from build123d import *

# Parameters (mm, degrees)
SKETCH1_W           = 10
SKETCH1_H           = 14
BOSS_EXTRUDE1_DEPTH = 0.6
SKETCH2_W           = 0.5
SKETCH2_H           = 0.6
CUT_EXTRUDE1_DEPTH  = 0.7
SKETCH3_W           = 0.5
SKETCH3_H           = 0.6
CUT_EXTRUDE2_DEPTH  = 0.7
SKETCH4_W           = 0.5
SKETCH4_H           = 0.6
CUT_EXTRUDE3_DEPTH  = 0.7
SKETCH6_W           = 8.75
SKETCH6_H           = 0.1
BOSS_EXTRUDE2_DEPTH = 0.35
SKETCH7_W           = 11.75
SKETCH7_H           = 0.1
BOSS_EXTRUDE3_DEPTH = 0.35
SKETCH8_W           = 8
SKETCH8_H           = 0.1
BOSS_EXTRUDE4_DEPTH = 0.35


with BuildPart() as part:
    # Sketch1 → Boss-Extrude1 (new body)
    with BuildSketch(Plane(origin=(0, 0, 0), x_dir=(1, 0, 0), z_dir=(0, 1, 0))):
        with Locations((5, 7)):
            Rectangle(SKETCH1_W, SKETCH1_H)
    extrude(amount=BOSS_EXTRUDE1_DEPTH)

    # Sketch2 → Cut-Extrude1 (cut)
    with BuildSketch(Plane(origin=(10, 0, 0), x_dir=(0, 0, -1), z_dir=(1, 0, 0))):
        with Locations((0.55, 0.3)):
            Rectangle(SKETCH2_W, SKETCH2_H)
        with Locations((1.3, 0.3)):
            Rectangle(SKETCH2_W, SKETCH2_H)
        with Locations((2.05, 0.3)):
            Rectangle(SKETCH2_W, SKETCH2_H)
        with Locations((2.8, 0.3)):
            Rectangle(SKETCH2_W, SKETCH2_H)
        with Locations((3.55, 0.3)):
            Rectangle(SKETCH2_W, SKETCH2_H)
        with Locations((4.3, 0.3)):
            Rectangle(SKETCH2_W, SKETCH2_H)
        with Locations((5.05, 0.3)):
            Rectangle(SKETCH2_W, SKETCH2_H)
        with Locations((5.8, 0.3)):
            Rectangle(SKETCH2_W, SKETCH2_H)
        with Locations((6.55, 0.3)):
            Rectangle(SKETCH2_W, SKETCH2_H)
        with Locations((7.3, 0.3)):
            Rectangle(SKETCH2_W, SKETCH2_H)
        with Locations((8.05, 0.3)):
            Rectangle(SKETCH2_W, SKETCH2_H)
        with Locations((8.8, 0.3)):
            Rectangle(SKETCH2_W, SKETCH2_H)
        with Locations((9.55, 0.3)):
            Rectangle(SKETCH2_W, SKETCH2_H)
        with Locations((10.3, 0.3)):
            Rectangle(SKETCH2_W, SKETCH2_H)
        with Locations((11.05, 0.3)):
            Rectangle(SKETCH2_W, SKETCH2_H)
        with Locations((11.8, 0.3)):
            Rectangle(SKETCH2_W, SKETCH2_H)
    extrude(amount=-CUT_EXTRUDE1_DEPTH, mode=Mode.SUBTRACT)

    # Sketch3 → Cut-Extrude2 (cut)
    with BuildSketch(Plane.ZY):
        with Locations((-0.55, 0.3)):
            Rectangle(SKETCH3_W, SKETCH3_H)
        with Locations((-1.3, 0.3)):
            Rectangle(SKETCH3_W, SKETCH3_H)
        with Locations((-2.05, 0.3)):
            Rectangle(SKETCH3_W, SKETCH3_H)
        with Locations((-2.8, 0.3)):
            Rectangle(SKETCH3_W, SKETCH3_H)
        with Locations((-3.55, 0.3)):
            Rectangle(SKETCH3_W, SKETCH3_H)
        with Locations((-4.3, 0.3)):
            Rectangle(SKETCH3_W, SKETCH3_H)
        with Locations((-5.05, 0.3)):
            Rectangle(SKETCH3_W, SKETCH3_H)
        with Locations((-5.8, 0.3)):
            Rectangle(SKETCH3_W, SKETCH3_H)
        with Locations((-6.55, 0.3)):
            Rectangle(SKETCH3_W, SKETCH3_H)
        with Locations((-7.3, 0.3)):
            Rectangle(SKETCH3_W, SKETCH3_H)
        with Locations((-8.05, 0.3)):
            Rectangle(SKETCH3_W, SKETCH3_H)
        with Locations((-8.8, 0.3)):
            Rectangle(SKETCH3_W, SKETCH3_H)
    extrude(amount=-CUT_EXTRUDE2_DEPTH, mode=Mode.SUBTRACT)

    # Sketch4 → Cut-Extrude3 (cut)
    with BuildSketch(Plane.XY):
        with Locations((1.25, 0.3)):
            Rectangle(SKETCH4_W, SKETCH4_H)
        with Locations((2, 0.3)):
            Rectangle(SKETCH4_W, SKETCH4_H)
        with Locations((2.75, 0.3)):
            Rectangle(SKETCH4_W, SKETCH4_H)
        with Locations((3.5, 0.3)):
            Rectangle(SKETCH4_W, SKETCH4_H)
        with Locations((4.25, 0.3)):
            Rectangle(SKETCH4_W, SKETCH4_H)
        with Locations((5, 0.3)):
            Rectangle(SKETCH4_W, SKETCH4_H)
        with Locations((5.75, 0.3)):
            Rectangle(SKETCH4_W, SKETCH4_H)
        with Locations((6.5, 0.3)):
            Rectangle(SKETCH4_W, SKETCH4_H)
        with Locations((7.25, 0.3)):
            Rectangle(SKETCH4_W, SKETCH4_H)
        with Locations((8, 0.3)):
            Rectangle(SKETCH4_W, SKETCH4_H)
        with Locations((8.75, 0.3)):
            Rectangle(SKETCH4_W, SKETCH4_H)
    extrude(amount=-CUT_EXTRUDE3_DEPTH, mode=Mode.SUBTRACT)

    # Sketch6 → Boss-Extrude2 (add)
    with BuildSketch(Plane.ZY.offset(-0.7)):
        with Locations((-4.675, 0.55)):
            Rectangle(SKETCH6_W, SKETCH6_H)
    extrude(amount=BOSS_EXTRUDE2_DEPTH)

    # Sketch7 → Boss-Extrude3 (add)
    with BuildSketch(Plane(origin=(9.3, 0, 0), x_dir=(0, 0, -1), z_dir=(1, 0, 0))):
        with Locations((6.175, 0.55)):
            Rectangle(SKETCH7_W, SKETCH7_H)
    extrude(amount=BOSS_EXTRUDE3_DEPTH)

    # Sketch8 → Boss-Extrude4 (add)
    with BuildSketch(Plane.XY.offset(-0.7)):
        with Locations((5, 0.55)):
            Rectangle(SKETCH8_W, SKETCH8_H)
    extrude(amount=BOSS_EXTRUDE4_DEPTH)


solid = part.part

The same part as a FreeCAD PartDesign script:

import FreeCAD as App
import Part
import Sketcher
from FreeCAD import Vector
Q = App.Units.Quantity


def add_polygon(sketch, points):
    """Adds a closed chain of lines whose ends are joined by coincident constraints."""
    first, n = sketch.GeometryCount, len(points)
    for a, b in zip(points, points[1:] + points[:1]):
        sketch.addGeometry(Part.LineSegment(App.Vector(*a, 0), App.Vector(*b, 0)), False)
    for i in range(n):
        sketch.addConstraint(Sketcher.Constraint("Coincident", first + i, 2, first + (i + 1) % n, 1))

doc = App.newDocument("Part")
body = doc.addObject("PartDesign::Body", "Body")

# Sketch on XZ plane
sketch1 = body.newObject("Sketcher::SketchObject", "Sketch")
sketch1.AttachmentSupport = (doc.getObject("XZ_Plane"), [""])
sketch1.MapMode = "FlatFace"
add_polygon(sketch1, [(0, -14), (0, 0), (10, 0), (10, -14)])  # lines 0-3
sketch1.addConstraint(Sketcher.Constraint("Vertical", 0))
sketch1.addConstraint(Sketcher.Constraint("Horizontal", 1))
sketch1.addConstraint(Sketcher.Constraint("Vertical", 2))
sketch1.addConstraint(Sketcher.Constraint("Horizontal", 3))
sketch1.addConstraint(Sketcher.Constraint("Coincident", 0, 2, -1, 1))
sketch1.addConstraint(Sketcher.Constraint("DistanceX", 1, 1, 1, 2, Q("10 mm")))
sketch1.addConstraint(Sketcher.Constraint("DistanceY", 0, 1, 0, 2, Q("14 mm")))
pad1 = body.newObject("PartDesign::Pad", "Pad")
pad1.Profile = sketch1
pad1.Length = 0.6
pad1.Reversed = True

# Sketch on YZ plane
sketch2 = body.newObject("Sketcher::SketchObject", "Sketch001")
sketch2.AttachmentSupport = (doc.getObject("YZ_Plane"), [""])
sketch2.MapMode = "FlatFace"
sketch2.AttachmentOffset = App.Placement(Vector(0, 0, 10), App.Rotation())
add_polygon(sketch2, [(0.6, -0.3), (0, -0.3), (0, -0.8), (0.6, -0.8)])  # lines 0-3
add_polygon(sketch2, [(0.6, -1.05), (0, -1.05), (0, -1.55), (0.6, -1.55)])  # lines 4-7
add_polygon(sketch2, [(0.6, -1.8), (0, -1.8), (0, -2.3), (0.6, -2.3)])  # lines 8-11
add_polygon(sketch2, [(0.6, -2.55), (0, -2.55), (0, -3.05), (0.6, -3.05)])  # lines 12-15
add_polygon(sketch2, [(0.6, -3.3), (0, -3.3), (0, -3.8), (0.6, -3.8)])  # lines 16-19
add_polygon(sketch2, [(0.6, -4.05), (0, -4.05), (0, -4.55), (0.6, -4.55)])  # lines 20-23
add_polygon(sketch2, [(0.6, -4.8), (0, -4.8), (0, -5.3), (0.6, -5.3)])  # lines 24-27
add_polygon(sketch2, [(0.6, -5.55), (0, -5.55), (0, -6.05), (0.6, -6.05)])  # lines 28-31
add_polygon(sketch2, [(0.6, -6.3), (0, -6.3), (0, -6.8), (0.6, -6.8)])  # lines 32-35
add_polygon(sketch2, [(0.6, -7.05), (0, -7.05), (0, -7.55), (0.6, -7.55)])  # lines 36-39
add_polygon(sketch2, [(0.6, -7.8), (0, -7.8), (0, -8.3), (0.6, -8.3)])  # lines 40-43
add_polygon(sketch2, [(0.6, -8.55), (0, -8.55), (0, -9.05), (0.6, -9.05)])  # lines 44-47
add_polygon(sketch2, [(0.6, -9.3), (0, -9.3), (0, -9.8), (0.6, -9.8)])  # lines 48-51
add_polygon(sketch2, [(0.6, -10.05), (0, -10.05), (0, -10.55), (0.6, -10.55)])  # lines 52-55
add_polygon(sketch2, [(0.6, -10.8), (0, -10.8), (0, -11.3), (0.6, -11.3)])  # lines 56-59
add_polygon(sketch2, [(0.6, -11.55), (0, -11.55), (0, -12.05), (0.6, -12.05)])  # lines 60-63
sketch2.addConstraint(Sketcher.Constraint("Horizontal", 0))
sketch2.addConstraint(Sketcher.Constraint("Vertical", 1))
sketch2.addConstraint(Sketcher.Constraint("Horizontal", 2))
sketch2.addConstraint(Sketcher.Constraint("Vertical", 3))
sketch2.addConstraint(Sketcher.Constraint("Horizontal", 4))
sketch2.addConstraint(Sketcher.Constraint("Vertical", 5))
sketch2.addConstraint(Sketcher.Constraint("Horizontal", 6))
sketch2.addConstraint(Sketcher.Constraint("Vertical", 7))
sketch2.addConstraint(Sketcher.Constraint("Horizontal", 8))
sketch2.addConstraint(Sketcher.Constraint("Vertical", 9))
sketch2.addConstraint(Sketcher.Constraint("Horizontal", 10))
sketch2.addConstraint(Sketcher.Constraint("Vertical", 11))
sketch2.addConstraint(Sketcher.Constraint("Horizontal", 12))
sketch2.addConstraint(Sketcher.Constraint("Vertical", 13))
sketch2.addConstraint(Sketcher.Constraint("Horizontal", 14))
sketch2.addConstraint(Sketcher.Constraint("Vertical", 15))
sketch2.addConstraint(Sketcher.Constraint("Horizontal", 16))
sketch2.addConstraint(Sketcher.Constraint("Vertical", 17))
sketch2.addConstraint(Sketcher.Constraint("Horizontal", 18))
sketch2.addConstraint(Sketcher.Constraint("Vertical", 19))
sketch2.addConstraint(Sketcher.Constraint("Horizontal", 20))
sketch2.addConstraint(Sketcher.Constraint("Vertical", 21))
sketch2.addConstraint(Sketcher.Constraint("Horizontal", 22))
sketch2.addConstraint(Sketcher.Constraint("Vertical", 23))
sketch2.addConstraint(Sketcher.Constraint("Horizontal", 24))
sketch2.addConstraint(Sketcher.Constraint("Vertical", 25))
sketch2.addConstraint(Sketcher.Constraint("Horizontal", 26))
sketch2.addConstraint(Sketcher.Constraint("Vertical", 27))
sketch2.addConstraint(Sketcher.Constraint("Horizontal", 28))
sketch2.addConstraint(Sketcher.Constraint("Vertical", 29))
sketch2.addConstraint(Sketcher.Constraint("Horizontal", 30))
sketch2.addConstraint(Sketcher.Constraint("Vertical", 31))
sketch2.addConstraint(Sketcher.Constraint("Horizontal", 32))
sketch2.addConstraint(Sketcher.Constraint("Vertical", 33))
sketch2.addConstraint(Sketcher.Constraint("Horizontal", 34))
sketch2.addConstraint(Sketcher.Constraint("Vertical", 35))
sketch2.addConstraint(Sketcher.Constraint("Horizontal", 36))
sketch2.addConstraint(Sketcher.Constraint("Vertical", 37))
sketch2.addConstraint(Sketcher.Constraint("Horizontal", 38))
sketch2.addConstraint(Sketcher.Constraint("Vertical", 39))
sketch2.addConstraint(Sketcher.Constraint("Horizontal", 40))
sketch2.addConstraint(Sketcher.Constraint("Vertical", 41))
sketch2.addConstraint(Sketcher.Constraint("Horizontal", 42))
sketch2.addConstraint(Sketcher.Constraint("Vertical", 43))
sketch2.addConstraint(Sketcher.Constraint("Horizontal", 44))
sketch2.addConstraint(Sketcher.Constraint("Vertical", 45))
sketch2.addConstraint(Sketcher.Constraint("Horizontal", 46))
sketch2.addConstraint(Sketcher.Constraint("Vertical", 47))
sketch2.addConstraint(Sketcher.Constraint("Horizontal", 48))
sketch2.addConstraint(Sketcher.Constraint("Vertical", 49))
sketch2.addConstraint(Sketcher.Constraint("Horizontal", 50))
sketch2.addConstraint(Sketcher.Constraint("Vertical", 51))
sketch2.addConstraint(Sketcher.Constraint("Horizontal", 52))
sketch2.addConstraint(Sketcher.Constraint("Vertical", 53))
sketch2.addConstraint(Sketcher.Constraint("Horizontal", 54))
sketch2.addConstraint(Sketcher.Constraint("Vertical", 55))
sketch2.addConstraint(Sketcher.Constraint("Horizontal", 56))
sketch2.addConstraint(Sketcher.Constraint("Vertical", 57))
sketch2.addConstraint(Sketcher.Constraint("Horizontal", 58))
sketch2.addConstraint(Sketcher.Constraint("Vertical", 59))
sketch2.addConstraint(Sketcher.Constraint("Horizontal", 60))
sketch2.addConstraint(Sketcher.Constraint("Vertical", 61))
sketch2.addConstraint(Sketcher.Constraint("Horizontal", 62))
sketch2.addConstraint(Sketcher.Constraint("Vertical", 63))
sketch2.addConstraint(Sketcher.Constraint("PointOnObject", 0, 2, -2))
sketch2.addConstraint(Sketcher.Constraint("PointOnObject", 4, 2, -2))
sketch2.addConstraint(Sketcher.Constraint("PointOnObject", 8, 2, -2))
sketch2.addConstraint(Sketcher.Constraint("PointOnObject", 12, 2, -2))
sketch2.addConstraint(Sketcher.Constraint("PointOnObject", 16, 2, -2))
sketch2.addConstraint(Sketcher.Constraint("PointOnObject", 20, 2, -2))
sketch2.addConstraint(Sketcher.Constraint("PointOnObject", 24, 2, -2))
sketch2.addConstraint(Sketcher.Constraint("PointOnObject", 28, 2, -2))
sketch2.addConstraint(Sketcher.Constraint("PointOnObject", 32, 2, -2))
sketch2.addConstraint(Sketcher.Constraint("PointOnObject", 36, 2, -2))
sketch2.addConstraint(Sketcher.Constraint("PointOnObject", 40, 2, -2))
sketch2.addConstraint(Sketcher.Constraint("PointOnObject", 44, 2, -2))
sketch2.addConstraint(Sketcher.Constraint("PointOnObject", 48, 2, -2))
sketch2.addConstraint(Sketcher.Constraint("PointOnObject", 52, 2, -2))
sketch2.addConstraint(Sketcher.Constraint("PointOnObject", 56, 2, -2))
sketch2.addConstraint(Sketcher.Constraint("PointOnObject", 60, 2, -2))
sketch2.addConstraint(Sketcher.Constraint("Vertical", 3, 2, 6, 2))
sketch2.addConstraint(Sketcher.Constraint("Vertical", 7, 2, 10, 2))
sketch2.addConstraint(Sketcher.Constraint("Vertical", 11, 2, 14, 2))
sketch2.addConstraint(Sketcher.Constraint("Vertical", 15, 2, 18, 2))
sketch2.addConstraint(Sketcher.Constraint("Vertical", 19, 2, 22, 2))
sketch2.addConstraint(Sketcher.Constraint("Vertical", 23, 2, 26, 2))
sketch2.addConstraint(Sketcher.Constraint("Vertical", 27, 2, 30, 2))
sketch2.addConstraint(Sketcher.Constraint("Vertical", 31, 2, 34, 2))
sketch2.addConstraint(Sketcher.Constraint("Vertical", 35, 2, 38, 2))
sketch2.addConstraint(Sketcher.Constraint("Vertical", 39, 2, 42, 2))
sketch2.addConstraint(Sketcher.Constraint("Vertical", 43, 2, 46, 2))
sketch2.addConstraint(Sketcher.Constraint("Vertical", 47, 2, 50, 2))
sketch2.addConstraint(Sketcher.Constraint("Vertical", 51, 2, 54, 2))
sketch2.addConstraint(Sketcher.Constraint("Vertical", 55, 2, 58, 2))
sketch2.addConstraint(Sketcher.Constraint("Vertical", 59, 2, 62, 2))
sketch2.addConstraint(Sketcher.Constraint("Equal", 3, 5))
sketch2.addConstraint(Sketcher.Constraint("Equal", 7, 9))
sketch2.addConstraint(Sketcher.Constraint("Equal", 11, 13))
sketch2.addConstraint(Sketcher.Constraint("Equal", 15, 17))
sketch2.addConstraint(Sketcher.Constraint("Equal", 19, 21))
sketch2.addConstraint(Sketcher.Constraint("Equal", 23, 25))
sketch2.addConstraint(Sketcher.Constraint("Equal", 27, 29))
sketch2.addConstraint(Sketcher.Constraint("Equal", 31, 33))
sketch2.addConstraint(Sketcher.Constraint("Equal", 35, 37))
sketch2.addConstraint(Sketcher.Constraint("Equal", 39, 41))
sketch2.addConstraint(Sketcher.Constraint("Equal", 43, 45))
sketch2.addConstraint(Sketcher.Constraint("Equal", 47, 49))
sketch2.addConstraint(Sketcher.Constraint("Equal", 51, 53))
sketch2.addConstraint(Sketcher.Constraint("Equal", 55, 57))
sketch2.addConstraint(Sketcher.Constraint("Equal", 59, 61))
sketch2.addConstraint(Sketcher.Constraint("DistanceX", 0, 2, 0, 1, Q("0.6 mm")))
sketch2.addConstraint(Sketcher.Constraint("DistanceY", 1, 2, 1, 1, Q("0.5 mm")))
sketch2.addConstraint(Sketcher.Constraint("DistanceY", 0, 2, -1, 1, Q("0.3 mm")))
sketch2.addConstraint(Sketcher.Constraint("DistanceY", 8, 2, -1, 1, Q("1.8 mm")))
sketch2.addConstraint(Sketcher.Constraint("DistanceY", 16, 2, -1, 1, Q("3.3 mm")))
sketch2.addConstraint(Sketcher.Constraint("DistanceY", 24, 2, -1, 1, Q("4.8 mm")))
sketch2.addConstraint(Sketcher.Constraint("DistanceY", 32, 2, -1, 1, Q("6.3 mm")))
sketch2.addConstraint(Sketcher.Constraint("DistanceY", 40, 2, -1, 1, Q("7.8 mm")))
sketch2.addConstraint(Sketcher.Constraint("DistanceY", 48, 2, -1, 1, Q("9.3 mm")))
sketch2.addConstraint(Sketcher.Constraint("DistanceY", 56, 2, -1, 1, Q("10.8 mm")))
sketch2.addConstraint(Sketcher.Constraint("DistanceY", 4, 2, -1, 1, Q("1.05 mm")))
sketch2.addConstraint(Sketcher.Constraint("DistanceY", 12, 2, -1, 1, Q("2.55 mm")))
sketch2.addConstraint(Sketcher.Constraint("DistanceY", 20, 2, -1, 1, Q("4.05 mm")))
sketch2.addConstraint(Sketcher.Constraint("DistanceY", 28, 2, -1, 1, Q("5.55 mm")))
sketch2.addConstraint(Sketcher.Constraint("DistanceY", 36, 2, -1, 1, Q("7.05 mm")))
sketch2.addConstraint(Sketcher.Constraint("DistanceY", 44, 2, -1, 1, Q("8.55 mm")))
sketch2.addConstraint(Sketcher.Constraint("DistanceY", 52, 2, -1, 1, Q("10.05 mm")))
sketch2.addConstraint(Sketcher.Constraint("DistanceY", 60, 2, -1, 1, Q("11.55 mm")))
pocket1 = body.newObject("PartDesign::Pocket", "Pocket")
pocket1.Profile = sketch2
pocket1.Length = 0.7

# Sketch on YZ plane
sketch3 = body.newObject("Sketcher::SketchObject", "Sketch002")
sketch3.AttachmentSupport = (doc.getObject("YZ_Plane"), [""])
sketch3.MapMode = "FlatFace"
add_polygon(sketch3, [(0.6, -0.8), (0, -0.8), (0, -0.3), (0.6, -0.3)])  # lines 0-3
add_polygon(sketch3, [(0.6, -1.55), (0, -1.55), (0, -1.05), (0.6, -1.05)])  # lines 4-7
add_polygon(sketch3, [(0.6, -2.3), (0, -2.3), (0, -1.8), (0.6, -1.8)])  # lines 8-11
add_polygon(sketch3, [(0.6, -3.05), (0, -3.05), (0, -2.55), (0.6, -2.55)])  # lines 12-15
add_polygon(sketch3, [(0.6, -3.8), (0, -3.8), (0, -3.3), (0.6, -3.3)])  # lines 16-19
add_polygon(sketch3, [(0.6, -4.55), (0, -4.55), (0, -4.05), (0.6, -4.05)])  # lines 20-23
add_polygon(sketch3, [(0.6, -5.3), (0, -5.3), (0, -4.8), (0.6, -4.8)])  # lines 24-27
add_polygon(sketch3, [(0.6, -6.05), (0, -6.05), (0, -5.55), (0.6, -5.55)])  # lines 28-31
add_polygon(sketch3, [(0.6, -6.8), (0, -6.8), (0, -6.3), (0.6, -6.3)])  # lines 32-35
add_polygon(sketch3, [(0.6, -7.55), (0, -7.55), (0, -7.05), (0.6, -7.05)])  # lines 36-39
add_polygon(sketch3, [(0.6, -8.3), (0, -8.3), (0, -7.8), (0.6, -7.8)])  # lines 40-43
add_polygon(sketch3, [(0.6, -9.05), (0, -9.05), (0, -8.55), (0.6, -8.55)])  # lines 44-47
sketch3.addConstraint(Sketcher.Constraint("Horizontal", 0))
sketch3.addConstraint(Sketcher.Constraint("Vertical", 1))
sketch3.addConstraint(Sketcher.Constraint("Horizontal", 2))
sketch3.addConstraint(Sketcher.Constraint("Vertical", 3))
sketch3.addConstraint(Sketcher.Constraint("Horizontal", 4))
sketch3.addConstraint(Sketcher.Constraint("Vertical", 5))
sketch3.addConstraint(Sketcher.Constraint("Horizontal", 6))
sketch3.addConstraint(Sketcher.Constraint("Vertical", 7))
sketch3.addConstraint(Sketcher.Constraint("Horizontal", 8))
sketch3.addConstraint(Sketcher.Constraint("Vertical", 9))
sketch3.addConstraint(Sketcher.Constraint("Horizontal", 10))
sketch3.addConstraint(Sketcher.Constraint("Vertical", 11))
sketch3.addConstraint(Sketcher.Constraint("Horizontal", 12))
sketch3.addConstraint(Sketcher.Constraint("Vertical", 13))
sketch3.addConstraint(Sketcher.Constraint("Horizontal", 14))
sketch3.addConstraint(Sketcher.Constraint("Vertical", 15))
sketch3.addConstraint(Sketcher.Constraint("Horizontal", 16))
sketch3.addConstraint(Sketcher.Constraint("Vertical", 17))
sketch3.addConstraint(Sketcher.Constraint("Horizontal", 18))
sketch3.addConstraint(Sketcher.Constraint("Vertical", 19))
sketch3.addConstraint(Sketcher.Constraint("Horizontal", 20))
sketch3.addConstraint(Sketcher.Constraint("Vertical", 21))
sketch3.addConstraint(Sketcher.Constraint("Horizontal", 22))
sketch3.addConstraint(Sketcher.Constraint("Vertical", 23))
sketch3.addConstraint(Sketcher.Constraint("Horizontal", 24))
sketch3.addConstraint(Sketcher.Constraint("Vertical", 25))
sketch3.addConstraint(Sketcher.Constraint("Horizontal", 26))
sketch3.addConstraint(Sketcher.Constraint("Vertical", 27))
sketch3.addConstraint(Sketcher.Constraint("Horizontal", 28))
sketch3.addConstraint(Sketcher.Constraint("Vertical", 29))
sketch3.addConstraint(Sketcher.Constraint("Horizontal", 30))
sketch3.addConstraint(Sketcher.Constraint("Vertical", 31))
sketch3.addConstraint(Sketcher.Constraint("Horizontal", 32))
sketch3.addConstraint(Sketcher.Constraint("Vertical", 33))
sketch3.addConstraint(Sketcher.Constraint("Horizontal", 34))
sketch3.addConstraint(Sketcher.Constraint("Vertical", 35))
sketch3.addConstraint(Sketcher.Constraint("Horizontal", 36))
sketch3.addConstraint(Sketcher.Constraint("Vertical", 37))
sketch3.addConstraint(Sketcher.Constraint("Horizontal", 38))
sketch3.addConstraint(Sketcher.Constraint("Vertical", 39))
sketch3.addConstraint(Sketcher.Constraint("Horizontal", 40))
sketch3.addConstraint(Sketcher.Constraint("Vertical", 41))
sketch3.addConstraint(Sketcher.Constraint("Horizontal", 42))
sketch3.addConstraint(Sketcher.Constraint("Vertical", 43))
sketch3.addConstraint(Sketcher.Constraint("Horizontal", 44))
sketch3.addConstraint(Sketcher.Constraint("Vertical", 45))
sketch3.addConstraint(Sketcher.Constraint("Horizontal", 46))
sketch3.addConstraint(Sketcher.Constraint("Vertical", 47))
sketch3.addConstraint(Sketcher.Constraint("PointOnObject", 0, 2, -2))
sketch3.addConstraint(Sketcher.Constraint("PointOnObject", 4, 2, -2))
sketch3.addConstraint(Sketcher.Constraint("PointOnObject", 8, 2, -2))
sketch3.addConstraint(Sketcher.Constraint("PointOnObject", 12, 2, -2))
sketch3.addConstraint(Sketcher.Constraint("PointOnObject", 16, 2, -2))
sketch3.addConstraint(Sketcher.Constraint("PointOnObject", 20, 2, -2))
sketch3.addConstraint(Sketcher.Constraint("PointOnObject", 24, 2, -2))
sketch3.addConstraint(Sketcher.Constraint("PointOnObject", 28, 2, -2))
sketch3.addConstraint(Sketcher.Constraint("PointOnObject", 32, 2, -2))
sketch3.addConstraint(Sketcher.Constraint("PointOnObject", 36, 2, -2))
sketch3.addConstraint(Sketcher.Constraint("PointOnObject", 40, 2, -2))
sketch3.addConstraint(Sketcher.Constraint("PointOnObject", 44, 2, -2))
sketch3.addConstraint(Sketcher.Constraint("Vertical", 3, 2, 6, 2))
sketch3.addConstraint(Sketcher.Constraint("Vertical", 7, 2, 10, 2))
sketch3.addConstraint(Sketcher.Constraint("Vertical", 11, 2, 14, 2))
sketch3.addConstraint(Sketcher.Constraint("Vertical", 15, 2, 18, 2))
sketch3.addConstraint(Sketcher.Constraint("Vertical", 19, 2, 22, 2))
sketch3.addConstraint(Sketcher.Constraint("Vertical", 23, 2, 26, 2))
sketch3.addConstraint(Sketcher.Constraint("Vertical", 27, 2, 30, 2))
sketch3.addConstraint(Sketcher.Constraint("Vertical", 31, 2, 34, 2))
sketch3.addConstraint(Sketcher.Constraint("Vertical", 35, 2, 38, 2))
sketch3.addConstraint(Sketcher.Constraint("Vertical", 39, 2, 42, 2))
sketch3.addConstraint(Sketcher.Constraint("Vertical", 43, 2, 46, 2))
sketch3.addConstraint(Sketcher.Constraint("Equal", 3, 5))
sketch3.addConstraint(Sketcher.Constraint("Equal", 7, 9))
sketch3.addConstraint(Sketcher.Constraint("Equal", 11, 13))
sketch3.addConstraint(Sketcher.Constraint("Equal", 15, 17))
sketch3.addConstraint(Sketcher.Constraint("Equal", 19, 21))
sketch3.addConstraint(Sketcher.Constraint("Equal", 23, 25))
sketch3.addConstraint(Sketcher.Constraint("Equal", 27, 29))
sketch3.addConstraint(Sketcher.Constraint("Equal", 31, 33))
sketch3.addConstraint(Sketcher.Constraint("Equal", 35, 37))
sketch3.addConstraint(Sketcher.Constraint("Equal", 39, 41))
sketch3.addConstraint(Sketcher.Constraint("Equal", 43, 45))
sketch3.addConstraint(Sketcher.Constraint("DistanceX", 0, 2, 0, 1, Q("0.6 mm")))
sketch3.addConstraint(Sketcher.Constraint("DistanceY", 1, 1, 1, 2, Q("0.5 mm")))
sketch3.addConstraint(Sketcher.Constraint("DistanceY", 0, 2, -1, 1, Q("0.8 mm")))
sketch3.addConstraint(Sketcher.Constraint("DistanceY", 8, 2, -1, 1, Q("2.3 mm")))
sketch3.addConstraint(Sketcher.Constraint("DistanceY", 16, 2, -1, 1, Q("3.8 mm")))
sketch3.addConstraint(Sketcher.Constraint("DistanceY", 24, 2, -1, 1, Q("5.3 mm")))
sketch3.addConstraint(Sketcher.Constraint("DistanceY", 32, 2, -1, 1, Q("6.8 mm")))
sketch3.addConstraint(Sketcher.Constraint("DistanceY", 40, 2, -1, 1, Q("8.3 mm")))
sketch3.addConstraint(Sketcher.Constraint("DistanceY", 12, 2, 4, 2, Q("1.5 mm")))
sketch3.addConstraint(Sketcher.Constraint("DistanceY", 20, 2, 12, 2, Q("1.5 mm")))
sketch3.addConstraint(Sketcher.Constraint("DistanceY", 28, 2, 20, 2, Q("1.5 mm")))
sketch3.addConstraint(Sketcher.Constraint("DistanceY", 36, 2, 28, 2, Q("1.5 mm")))
sketch3.addConstraint(Sketcher.Constraint("DistanceY", 44, 2, 36, 2, Q("1.5 mm")))
sketch3.addConstraint(Sketcher.Constraint("DistanceY", 4, 2, -1, 1, Q("1.55 mm")))
pocket2 = body.newObject("PartDesign::Pocket", "Pocket001")
pocket2.Profile = sketch3
pocket2.Length = 0.7
pocket2.Reversed = True

# Sketch on XY plane
sketch4 = body.newObject("Sketcher::SketchObject", "Sketch003")
sketch4.AttachmentSupport = (doc.getObject("XY_Plane"), [""])
sketch4.MapMode = "FlatFace"
add_polygon(sketch4, [(1, 0.6), (1, 0), (1.5, 0), (1.5, 0.6)])  # lines 0-3
add_polygon(sketch4, [(1.8, 0.6), (1.8, 0), (2.2, 0), (2.2, 0.6)])  # lines 4-7
add_polygon(sketch4, [(2.5, 0.6), (2.5, 0), (3, 0), (3, 0.6)])  # lines 8-11
add_polygon(sketch4, [(3.2, 0.6), (3.2, 0), (3.8, 0), (3.8, 0.6)])  # lines 12-15
add_polygon(sketch4, [(4, 0.6), (4, 0), (4.5, 0), (4.5, 0.6)])  # lines 16-19
add_polygon(sketch4, [(4.8, 0.6), (4.8, 0), (5.2, 0), (5.2, 0.6)])  # lines 20-23
add_polygon(sketch4, [(5.5, 0.6), (5.5, 0), (6, 0), (6, 0.6)])  # lines 24-27
add_polygon(sketch4, [(6.2, 0.6), (6.2, 0), (6.8, 0), (6.8, 0.6)])  # lines 28-31
add_polygon(sketch4, [(7, 0.6), (7, 0), (7.5, 0), (7.5, 0.6)])  # lines 32-35
add_polygon(sketch4, [(7.8, 0.6), (7.8, 0), (8.2, 0), (8.2, 0.6)])  # lines 36-39
add_polygon(sketch4, [(8.5, 0.6), (8.5, 0), (9, 0), (9, 0.6)])  # lines 40-43
sketch4.addConstraint(Sketcher.Constraint("Vertical", 0))
sketch4.addConstraint(Sketcher.Constraint("Horizontal", 1))
sketch4.addConstraint(Sketcher.Constraint("Vertical", 2))
sketch4.addConstraint(Sketcher.Constraint("Horizontal", 3))
sketch4.addConstraint(Sketcher.Constraint("Vertical", 4))
sketch4.addConstraint(Sketcher.Constraint("Horizontal", 5))
sketch4.addConstraint(Sketcher.Constraint("Vertical", 6))
sketch4.addConstraint(Sketcher.Constraint("Horizontal", 7))
sketch4.addConstraint(Sketcher.Constraint("Vertical", 8))
sketch4.addConstraint(Sketcher.Constraint("Horizontal", 9))
sketch4.addConstraint(Sketcher.Constraint("Vertical", 10))
sketch4.addConstraint(Sketcher.Constraint("Horizontal", 11))
sketch4.addConstraint(Sketcher.Constraint("Vertical", 12))
sketch4.addConstraint(Sketcher.Constraint("Horizontal", 13))
sketch4.addConstraint(Sketcher.Constraint("Vertical", 14))
sketch4.addConstraint(Sketcher.Constraint("Horizontal", 15))
sketch4.addConstraint(Sketcher.Constraint("Vertical", 16))
sketch4.addConstraint(Sketcher.Constraint("Horizontal", 17))
sketch4.addConstraint(Sketcher.Constraint("Vertical", 18))
sketch4.addConstraint(Sketcher.Constraint("Horizontal", 19))
sketch4.addConstraint(Sketcher.Constraint("Vertical", 20))
sketch4.addConstraint(Sketcher.Constraint("Horizontal", 21))
sketch4.addConstraint(Sketcher.Constraint("Vertical", 22))
sketch4.addConstraint(Sketcher.Constraint("Horizontal", 23))
sketch4.addConstraint(Sketcher.Constraint("Vertical", 24))
sketch4.addConstraint(Sketcher.Constraint("Horizontal", 25))
sketch4.addConstraint(Sketcher.Constraint("Vertical", 26))
sketch4.addConstraint(Sketcher.Constraint("Horizontal", 27))
sketch4.addConstraint(Sketcher.Constraint("Vertical", 28))
sketch4.addConstraint(Sketcher.Constraint("Horizontal", 29))
sketch4.addConstraint(Sketcher.Constraint("Vertical", 30))
sketch4.addConstraint(Sketcher.Constraint("Horizontal", 31))
sketch4.addConstraint(Sketcher.Constraint("Vertical", 32))
sketch4.addConstraint(Sketcher.Constraint("Horizontal", 33))
sketch4.addConstraint(Sketcher.Constraint("Vertical", 34))
sketch4.addConstraint(Sketcher.Constraint("Horizontal", 35))
sketch4.addConstraint(Sketcher.Constraint("Vertical", 36))
sketch4.addConstraint(Sketcher.Constraint("Horizontal", 37))
sketch4.addConstraint(Sketcher.Constraint("Vertical", 38))
sketch4.addConstraint(Sketcher.Constraint("Horizontal", 39))
sketch4.addConstraint(Sketcher.Constraint("Vertical", 40))
sketch4.addConstraint(Sketcher.Constraint("Horizontal", 41))
sketch4.addConstraint(Sketcher.Constraint("Vertical", 42))
sketch4.addConstraint(Sketcher.Constraint("Horizontal", 43))
sketch4.addConstraint(Sketcher.Constraint("PointOnObject", 0, 2, -1))
sketch4.addConstraint(Sketcher.Constraint("PointOnObject", 4, 2, -1))
sketch4.addConstraint(Sketcher.Constraint("PointOnObject", 8, 2, -1))
sketch4.addConstraint(Sketcher.Constraint("PointOnObject", 12, 2, -1))
sketch4.addConstraint(Sketcher.Constraint("PointOnObject", 16, 2, -1))
sketch4.addConstraint(Sketcher.Constraint("PointOnObject", 20, 2, -1))
sketch4.addConstraint(Sketcher.Constraint("PointOnObject", 24, 2, -1))
sketch4.addConstraint(Sketcher.Constraint("PointOnObject", 28, 2, -1))
sketch4.addConstraint(Sketcher.Constraint("PointOnObject", 32, 2, -1))
sketch4.addConstraint(Sketcher.Constraint("PointOnObject", 36, 2, -1))
sketch4.addConstraint(Sketcher.Constraint("PointOnObject", 40, 2, -1))
sketch4.addConstraint(Sketcher.Constraint("Horizontal", 3, 2, 6, 2))
sketch4.addConstraint(Sketcher.Constraint("Horizontal", 7, 2, 10, 2))
sketch4.addConstraint(Sketcher.Constraint("Horizontal", 11, 2, 14, 2))
sketch4.addConstraint(Sketcher.Constraint("Horizontal", 15, 2, 18, 2))
sketch4.addConstraint(Sketcher.Constraint("Horizontal", 19, 2, 22, 2))
sketch4.addConstraint(Sketcher.Constraint("Horizontal", 23, 2, 26, 2))
sketch4.addConstraint(Sketcher.Constraint("Horizontal", 27, 2, 30, 2))
sketch4.addConstraint(Sketcher.Constraint("Horizontal", 31, 2, 34, 2))
sketch4.addConstraint(Sketcher.Constraint("Horizontal", 35, 2, 38, 2))
sketch4.addConstraint(Sketcher.Constraint("Horizontal", 39, 2, 42, 2))
sketch4.addConstraint(Sketcher.Constraint("Equal", 3, 5))
sketch4.addConstraint(Sketcher.Constraint("Equal", 7, 9))
sketch4.addConstraint(Sketcher.Constraint("Equal", 11, 13))
sketch4.addConstraint(Sketcher.Constraint("Equal", 15, 17))
sketch4.addConstraint(Sketcher.Constraint("Equal", 19, 21))
sketch4.addConstraint(Sketcher.Constraint("Equal", 23, 25))
sketch4.addConstraint(Sketcher.Constraint("Equal", 27, 29))
sketch4.addConstraint(Sketcher.Constraint("Equal", 31, 33))
sketch4.addConstraint(Sketcher.Constraint("Equal", 35, 37))
sketch4.addConstraint(Sketcher.Constraint("Equal", 39, 41))
sketch4.addConstraint(Sketcher.Constraint("DistanceX", 1, 1, 1, 2, Q("0.5 mm")))
sketch4.addConstraint(Sketcher.Constraint("DistanceY", 0, 2, 0, 1, Q("0.6 mm")))
sketch4.addConstraint(Sketcher.Constraint("DistanceX", -1, 1, 0, 2, Q("1 mm")))
sketch4.addConstraint(Sketcher.Constraint("DistanceX", -1, 1, 9, 2, Q("3 mm")))
sketch4.addConstraint(Sketcher.Constraint("DistanceX", -1, 1, 16, 2, Q("4 mm")))
sketch4.addConstraint(Sketcher.Constraint("DistanceX", -1, 1, 25, 2, Q("6 mm")))
sketch4.addConstraint(Sketcher.Constraint("DistanceX", -1, 1, 32, 2, Q("7 mm")))
sketch4.addConstraint(Sketcher.Constraint("DistanceX", -1, 1, 41, 2, Q("9 mm")))
sketch4.addConstraint(Sketcher.Constraint("DistanceX", 5, 2, 12, 2, Q("1 mm")))
sketch4.addConstraint(Sketcher.Constraint("DistanceX", 13, 2, 20, 2, Q("1 mm")))
sketch4.addConstraint(Sketcher.Constraint("DistanceX", 21, 2, 28, 2, Q("1 mm")))
sketch4.addConstraint(Sketcher.Constraint("DistanceX", 29, 2, 36, 2, Q("1 mm")))
sketch4.addConstraint(Sketcher.Constraint("DistanceX", -1, 1, 4, 2, Q("1.75 mm")))
pocket3 = body.newObject("PartDesign::Pocket", "Pocket002")
pocket3.Profile = sketch4
pocket3.Length = 0.7

# Sketch on YZ plane
sketch5 = body.newObject("Sketcher::SketchObject", "Sketch004")
sketch5.AttachmentSupport = (doc.getObject("YZ_Plane"), [""])
sketch5.MapMode = "FlatFace"
sketch5.AttachmentOffset = App.Placement(Vector(0, 0, 0.7), App.Rotation())
add_polygon(sketch5, [(0.6, -9.05), (0.5, -9.05), (0.5, -0.3), (0.6, -0.3)])  # lines 0-3
sketch5.addConstraint(Sketcher.Constraint("Horizontal", 0))
sketch5.addConstraint(Sketcher.Constraint("Vertical", 1))
sketch5.addConstraint(Sketcher.Constraint("Horizontal", 2))
sketch5.addConstraint(Sketcher.Constraint("Vertical", 3))
sketch5.addConstraint(Sketcher.Constraint("DistanceX", 0, 2, 0, 1, Q("0.1 mm")))
sketch5.addConstraint(Sketcher.Constraint("DistanceY", 1, 1, 1, 2, Q("8.75 mm")))
sketch5.addConstraint(Sketcher.Constraint("DistanceX", -1, 1, 0, 2, Q("0.5 mm")))
sketch5.addConstraint(Sketcher.Constraint("DistanceY", 1, 2, -1, 1, Q("0.3 mm")))
pad2 = body.newObject("PartDesign::Pad", "Pad001")
pad2.Profile = sketch5
pad2.Length = 0.35
pad2.Reversed = True

# Sketch on YZ plane
sketch6 = body.newObject("Sketcher::SketchObject", "Sketch005")
sketch6.AttachmentSupport = (doc.getObject("YZ_Plane"), [""])
sketch6.MapMode = "FlatFace"
sketch6.AttachmentOffset = App.Placement(Vector(0, 0, 9.3), App.Rotation())
add_polygon(sketch6, [(0.6, -0.3), (0.5, -0.3), (0.5, -12.05), (0.6, -12.05)])  # lines 0-3
sketch6.addConstraint(Sketcher.Constraint("Horizontal", 0))
sketch6.addConstraint(Sketcher.Constraint("Vertical", 1))
sketch6.addConstraint(Sketcher.Constraint("Horizontal", 2))
sketch6.addConstraint(Sketcher.Constraint("Vertical", 3))
sketch6.addConstraint(Sketcher.Constraint("DistanceX", 0, 2, 0, 1, Q("0.1 mm")))
sketch6.addConstraint(Sketcher.Constraint("DistanceY", 1, 2, 1, 1, Q("11.75 mm")))
sketch6.addConstraint(Sketcher.Constraint("DistanceX", -1, 1, 0, 2, Q("0.5 mm")))
sketch6.addConstraint(Sketcher.Constraint("DistanceY", 0, 2, -1, 1, Q("0.3 mm")))
pad3 = body.newObject("PartDesign::Pad", "Pad002")
pad3.Profile = sketch6
pad3.Length = 0.35

# Sketch on XY plane
sketch7 = body.newObject("Sketcher::SketchObject", "Sketch006")
sketch7.AttachmentSupport = (doc.getObject("XY_Plane"), [""])
sketch7.MapMode = "FlatFace"
sketch7.AttachmentOffset = App.Placement(Vector(0, 0, -0.7), App.Rotation())
add_polygon(sketch7, [(1, 0.6), (1, 0.5), (9, 0.5), (9, 0.6)])  # lines 0-3
sketch7.addConstraint(Sketcher.Constraint("Vertical", 0))
sketch7.addConstraint(Sketcher.Constraint("Horizontal", 1))
sketch7.addConstraint(Sketcher.Constraint("Vertical", 2))
sketch7.addConstraint(Sketcher.Constraint("Horizontal", 3))
sketch7.addConstraint(Sketcher.Constraint("DistanceX", 1, 1, 1, 2, Q("8 mm")))
sketch7.addConstraint(Sketcher.Constraint("DistanceY", 0, 2, 0, 1, Q("0.1 mm")))
sketch7.addConstraint(Sketcher.Constraint("DistanceX", -1, 1, 0, 2, Q("1 mm")))
sketch7.addConstraint(Sketcher.Constraint("DistanceY", -1, 1, 0, 2, Q("0.5 mm")))
pad4 = body.newObject("PartDesign::Pad", "Pad003")
pad4.Profile = sketch7
pad4.Length = 0.35

doc.recompute()
